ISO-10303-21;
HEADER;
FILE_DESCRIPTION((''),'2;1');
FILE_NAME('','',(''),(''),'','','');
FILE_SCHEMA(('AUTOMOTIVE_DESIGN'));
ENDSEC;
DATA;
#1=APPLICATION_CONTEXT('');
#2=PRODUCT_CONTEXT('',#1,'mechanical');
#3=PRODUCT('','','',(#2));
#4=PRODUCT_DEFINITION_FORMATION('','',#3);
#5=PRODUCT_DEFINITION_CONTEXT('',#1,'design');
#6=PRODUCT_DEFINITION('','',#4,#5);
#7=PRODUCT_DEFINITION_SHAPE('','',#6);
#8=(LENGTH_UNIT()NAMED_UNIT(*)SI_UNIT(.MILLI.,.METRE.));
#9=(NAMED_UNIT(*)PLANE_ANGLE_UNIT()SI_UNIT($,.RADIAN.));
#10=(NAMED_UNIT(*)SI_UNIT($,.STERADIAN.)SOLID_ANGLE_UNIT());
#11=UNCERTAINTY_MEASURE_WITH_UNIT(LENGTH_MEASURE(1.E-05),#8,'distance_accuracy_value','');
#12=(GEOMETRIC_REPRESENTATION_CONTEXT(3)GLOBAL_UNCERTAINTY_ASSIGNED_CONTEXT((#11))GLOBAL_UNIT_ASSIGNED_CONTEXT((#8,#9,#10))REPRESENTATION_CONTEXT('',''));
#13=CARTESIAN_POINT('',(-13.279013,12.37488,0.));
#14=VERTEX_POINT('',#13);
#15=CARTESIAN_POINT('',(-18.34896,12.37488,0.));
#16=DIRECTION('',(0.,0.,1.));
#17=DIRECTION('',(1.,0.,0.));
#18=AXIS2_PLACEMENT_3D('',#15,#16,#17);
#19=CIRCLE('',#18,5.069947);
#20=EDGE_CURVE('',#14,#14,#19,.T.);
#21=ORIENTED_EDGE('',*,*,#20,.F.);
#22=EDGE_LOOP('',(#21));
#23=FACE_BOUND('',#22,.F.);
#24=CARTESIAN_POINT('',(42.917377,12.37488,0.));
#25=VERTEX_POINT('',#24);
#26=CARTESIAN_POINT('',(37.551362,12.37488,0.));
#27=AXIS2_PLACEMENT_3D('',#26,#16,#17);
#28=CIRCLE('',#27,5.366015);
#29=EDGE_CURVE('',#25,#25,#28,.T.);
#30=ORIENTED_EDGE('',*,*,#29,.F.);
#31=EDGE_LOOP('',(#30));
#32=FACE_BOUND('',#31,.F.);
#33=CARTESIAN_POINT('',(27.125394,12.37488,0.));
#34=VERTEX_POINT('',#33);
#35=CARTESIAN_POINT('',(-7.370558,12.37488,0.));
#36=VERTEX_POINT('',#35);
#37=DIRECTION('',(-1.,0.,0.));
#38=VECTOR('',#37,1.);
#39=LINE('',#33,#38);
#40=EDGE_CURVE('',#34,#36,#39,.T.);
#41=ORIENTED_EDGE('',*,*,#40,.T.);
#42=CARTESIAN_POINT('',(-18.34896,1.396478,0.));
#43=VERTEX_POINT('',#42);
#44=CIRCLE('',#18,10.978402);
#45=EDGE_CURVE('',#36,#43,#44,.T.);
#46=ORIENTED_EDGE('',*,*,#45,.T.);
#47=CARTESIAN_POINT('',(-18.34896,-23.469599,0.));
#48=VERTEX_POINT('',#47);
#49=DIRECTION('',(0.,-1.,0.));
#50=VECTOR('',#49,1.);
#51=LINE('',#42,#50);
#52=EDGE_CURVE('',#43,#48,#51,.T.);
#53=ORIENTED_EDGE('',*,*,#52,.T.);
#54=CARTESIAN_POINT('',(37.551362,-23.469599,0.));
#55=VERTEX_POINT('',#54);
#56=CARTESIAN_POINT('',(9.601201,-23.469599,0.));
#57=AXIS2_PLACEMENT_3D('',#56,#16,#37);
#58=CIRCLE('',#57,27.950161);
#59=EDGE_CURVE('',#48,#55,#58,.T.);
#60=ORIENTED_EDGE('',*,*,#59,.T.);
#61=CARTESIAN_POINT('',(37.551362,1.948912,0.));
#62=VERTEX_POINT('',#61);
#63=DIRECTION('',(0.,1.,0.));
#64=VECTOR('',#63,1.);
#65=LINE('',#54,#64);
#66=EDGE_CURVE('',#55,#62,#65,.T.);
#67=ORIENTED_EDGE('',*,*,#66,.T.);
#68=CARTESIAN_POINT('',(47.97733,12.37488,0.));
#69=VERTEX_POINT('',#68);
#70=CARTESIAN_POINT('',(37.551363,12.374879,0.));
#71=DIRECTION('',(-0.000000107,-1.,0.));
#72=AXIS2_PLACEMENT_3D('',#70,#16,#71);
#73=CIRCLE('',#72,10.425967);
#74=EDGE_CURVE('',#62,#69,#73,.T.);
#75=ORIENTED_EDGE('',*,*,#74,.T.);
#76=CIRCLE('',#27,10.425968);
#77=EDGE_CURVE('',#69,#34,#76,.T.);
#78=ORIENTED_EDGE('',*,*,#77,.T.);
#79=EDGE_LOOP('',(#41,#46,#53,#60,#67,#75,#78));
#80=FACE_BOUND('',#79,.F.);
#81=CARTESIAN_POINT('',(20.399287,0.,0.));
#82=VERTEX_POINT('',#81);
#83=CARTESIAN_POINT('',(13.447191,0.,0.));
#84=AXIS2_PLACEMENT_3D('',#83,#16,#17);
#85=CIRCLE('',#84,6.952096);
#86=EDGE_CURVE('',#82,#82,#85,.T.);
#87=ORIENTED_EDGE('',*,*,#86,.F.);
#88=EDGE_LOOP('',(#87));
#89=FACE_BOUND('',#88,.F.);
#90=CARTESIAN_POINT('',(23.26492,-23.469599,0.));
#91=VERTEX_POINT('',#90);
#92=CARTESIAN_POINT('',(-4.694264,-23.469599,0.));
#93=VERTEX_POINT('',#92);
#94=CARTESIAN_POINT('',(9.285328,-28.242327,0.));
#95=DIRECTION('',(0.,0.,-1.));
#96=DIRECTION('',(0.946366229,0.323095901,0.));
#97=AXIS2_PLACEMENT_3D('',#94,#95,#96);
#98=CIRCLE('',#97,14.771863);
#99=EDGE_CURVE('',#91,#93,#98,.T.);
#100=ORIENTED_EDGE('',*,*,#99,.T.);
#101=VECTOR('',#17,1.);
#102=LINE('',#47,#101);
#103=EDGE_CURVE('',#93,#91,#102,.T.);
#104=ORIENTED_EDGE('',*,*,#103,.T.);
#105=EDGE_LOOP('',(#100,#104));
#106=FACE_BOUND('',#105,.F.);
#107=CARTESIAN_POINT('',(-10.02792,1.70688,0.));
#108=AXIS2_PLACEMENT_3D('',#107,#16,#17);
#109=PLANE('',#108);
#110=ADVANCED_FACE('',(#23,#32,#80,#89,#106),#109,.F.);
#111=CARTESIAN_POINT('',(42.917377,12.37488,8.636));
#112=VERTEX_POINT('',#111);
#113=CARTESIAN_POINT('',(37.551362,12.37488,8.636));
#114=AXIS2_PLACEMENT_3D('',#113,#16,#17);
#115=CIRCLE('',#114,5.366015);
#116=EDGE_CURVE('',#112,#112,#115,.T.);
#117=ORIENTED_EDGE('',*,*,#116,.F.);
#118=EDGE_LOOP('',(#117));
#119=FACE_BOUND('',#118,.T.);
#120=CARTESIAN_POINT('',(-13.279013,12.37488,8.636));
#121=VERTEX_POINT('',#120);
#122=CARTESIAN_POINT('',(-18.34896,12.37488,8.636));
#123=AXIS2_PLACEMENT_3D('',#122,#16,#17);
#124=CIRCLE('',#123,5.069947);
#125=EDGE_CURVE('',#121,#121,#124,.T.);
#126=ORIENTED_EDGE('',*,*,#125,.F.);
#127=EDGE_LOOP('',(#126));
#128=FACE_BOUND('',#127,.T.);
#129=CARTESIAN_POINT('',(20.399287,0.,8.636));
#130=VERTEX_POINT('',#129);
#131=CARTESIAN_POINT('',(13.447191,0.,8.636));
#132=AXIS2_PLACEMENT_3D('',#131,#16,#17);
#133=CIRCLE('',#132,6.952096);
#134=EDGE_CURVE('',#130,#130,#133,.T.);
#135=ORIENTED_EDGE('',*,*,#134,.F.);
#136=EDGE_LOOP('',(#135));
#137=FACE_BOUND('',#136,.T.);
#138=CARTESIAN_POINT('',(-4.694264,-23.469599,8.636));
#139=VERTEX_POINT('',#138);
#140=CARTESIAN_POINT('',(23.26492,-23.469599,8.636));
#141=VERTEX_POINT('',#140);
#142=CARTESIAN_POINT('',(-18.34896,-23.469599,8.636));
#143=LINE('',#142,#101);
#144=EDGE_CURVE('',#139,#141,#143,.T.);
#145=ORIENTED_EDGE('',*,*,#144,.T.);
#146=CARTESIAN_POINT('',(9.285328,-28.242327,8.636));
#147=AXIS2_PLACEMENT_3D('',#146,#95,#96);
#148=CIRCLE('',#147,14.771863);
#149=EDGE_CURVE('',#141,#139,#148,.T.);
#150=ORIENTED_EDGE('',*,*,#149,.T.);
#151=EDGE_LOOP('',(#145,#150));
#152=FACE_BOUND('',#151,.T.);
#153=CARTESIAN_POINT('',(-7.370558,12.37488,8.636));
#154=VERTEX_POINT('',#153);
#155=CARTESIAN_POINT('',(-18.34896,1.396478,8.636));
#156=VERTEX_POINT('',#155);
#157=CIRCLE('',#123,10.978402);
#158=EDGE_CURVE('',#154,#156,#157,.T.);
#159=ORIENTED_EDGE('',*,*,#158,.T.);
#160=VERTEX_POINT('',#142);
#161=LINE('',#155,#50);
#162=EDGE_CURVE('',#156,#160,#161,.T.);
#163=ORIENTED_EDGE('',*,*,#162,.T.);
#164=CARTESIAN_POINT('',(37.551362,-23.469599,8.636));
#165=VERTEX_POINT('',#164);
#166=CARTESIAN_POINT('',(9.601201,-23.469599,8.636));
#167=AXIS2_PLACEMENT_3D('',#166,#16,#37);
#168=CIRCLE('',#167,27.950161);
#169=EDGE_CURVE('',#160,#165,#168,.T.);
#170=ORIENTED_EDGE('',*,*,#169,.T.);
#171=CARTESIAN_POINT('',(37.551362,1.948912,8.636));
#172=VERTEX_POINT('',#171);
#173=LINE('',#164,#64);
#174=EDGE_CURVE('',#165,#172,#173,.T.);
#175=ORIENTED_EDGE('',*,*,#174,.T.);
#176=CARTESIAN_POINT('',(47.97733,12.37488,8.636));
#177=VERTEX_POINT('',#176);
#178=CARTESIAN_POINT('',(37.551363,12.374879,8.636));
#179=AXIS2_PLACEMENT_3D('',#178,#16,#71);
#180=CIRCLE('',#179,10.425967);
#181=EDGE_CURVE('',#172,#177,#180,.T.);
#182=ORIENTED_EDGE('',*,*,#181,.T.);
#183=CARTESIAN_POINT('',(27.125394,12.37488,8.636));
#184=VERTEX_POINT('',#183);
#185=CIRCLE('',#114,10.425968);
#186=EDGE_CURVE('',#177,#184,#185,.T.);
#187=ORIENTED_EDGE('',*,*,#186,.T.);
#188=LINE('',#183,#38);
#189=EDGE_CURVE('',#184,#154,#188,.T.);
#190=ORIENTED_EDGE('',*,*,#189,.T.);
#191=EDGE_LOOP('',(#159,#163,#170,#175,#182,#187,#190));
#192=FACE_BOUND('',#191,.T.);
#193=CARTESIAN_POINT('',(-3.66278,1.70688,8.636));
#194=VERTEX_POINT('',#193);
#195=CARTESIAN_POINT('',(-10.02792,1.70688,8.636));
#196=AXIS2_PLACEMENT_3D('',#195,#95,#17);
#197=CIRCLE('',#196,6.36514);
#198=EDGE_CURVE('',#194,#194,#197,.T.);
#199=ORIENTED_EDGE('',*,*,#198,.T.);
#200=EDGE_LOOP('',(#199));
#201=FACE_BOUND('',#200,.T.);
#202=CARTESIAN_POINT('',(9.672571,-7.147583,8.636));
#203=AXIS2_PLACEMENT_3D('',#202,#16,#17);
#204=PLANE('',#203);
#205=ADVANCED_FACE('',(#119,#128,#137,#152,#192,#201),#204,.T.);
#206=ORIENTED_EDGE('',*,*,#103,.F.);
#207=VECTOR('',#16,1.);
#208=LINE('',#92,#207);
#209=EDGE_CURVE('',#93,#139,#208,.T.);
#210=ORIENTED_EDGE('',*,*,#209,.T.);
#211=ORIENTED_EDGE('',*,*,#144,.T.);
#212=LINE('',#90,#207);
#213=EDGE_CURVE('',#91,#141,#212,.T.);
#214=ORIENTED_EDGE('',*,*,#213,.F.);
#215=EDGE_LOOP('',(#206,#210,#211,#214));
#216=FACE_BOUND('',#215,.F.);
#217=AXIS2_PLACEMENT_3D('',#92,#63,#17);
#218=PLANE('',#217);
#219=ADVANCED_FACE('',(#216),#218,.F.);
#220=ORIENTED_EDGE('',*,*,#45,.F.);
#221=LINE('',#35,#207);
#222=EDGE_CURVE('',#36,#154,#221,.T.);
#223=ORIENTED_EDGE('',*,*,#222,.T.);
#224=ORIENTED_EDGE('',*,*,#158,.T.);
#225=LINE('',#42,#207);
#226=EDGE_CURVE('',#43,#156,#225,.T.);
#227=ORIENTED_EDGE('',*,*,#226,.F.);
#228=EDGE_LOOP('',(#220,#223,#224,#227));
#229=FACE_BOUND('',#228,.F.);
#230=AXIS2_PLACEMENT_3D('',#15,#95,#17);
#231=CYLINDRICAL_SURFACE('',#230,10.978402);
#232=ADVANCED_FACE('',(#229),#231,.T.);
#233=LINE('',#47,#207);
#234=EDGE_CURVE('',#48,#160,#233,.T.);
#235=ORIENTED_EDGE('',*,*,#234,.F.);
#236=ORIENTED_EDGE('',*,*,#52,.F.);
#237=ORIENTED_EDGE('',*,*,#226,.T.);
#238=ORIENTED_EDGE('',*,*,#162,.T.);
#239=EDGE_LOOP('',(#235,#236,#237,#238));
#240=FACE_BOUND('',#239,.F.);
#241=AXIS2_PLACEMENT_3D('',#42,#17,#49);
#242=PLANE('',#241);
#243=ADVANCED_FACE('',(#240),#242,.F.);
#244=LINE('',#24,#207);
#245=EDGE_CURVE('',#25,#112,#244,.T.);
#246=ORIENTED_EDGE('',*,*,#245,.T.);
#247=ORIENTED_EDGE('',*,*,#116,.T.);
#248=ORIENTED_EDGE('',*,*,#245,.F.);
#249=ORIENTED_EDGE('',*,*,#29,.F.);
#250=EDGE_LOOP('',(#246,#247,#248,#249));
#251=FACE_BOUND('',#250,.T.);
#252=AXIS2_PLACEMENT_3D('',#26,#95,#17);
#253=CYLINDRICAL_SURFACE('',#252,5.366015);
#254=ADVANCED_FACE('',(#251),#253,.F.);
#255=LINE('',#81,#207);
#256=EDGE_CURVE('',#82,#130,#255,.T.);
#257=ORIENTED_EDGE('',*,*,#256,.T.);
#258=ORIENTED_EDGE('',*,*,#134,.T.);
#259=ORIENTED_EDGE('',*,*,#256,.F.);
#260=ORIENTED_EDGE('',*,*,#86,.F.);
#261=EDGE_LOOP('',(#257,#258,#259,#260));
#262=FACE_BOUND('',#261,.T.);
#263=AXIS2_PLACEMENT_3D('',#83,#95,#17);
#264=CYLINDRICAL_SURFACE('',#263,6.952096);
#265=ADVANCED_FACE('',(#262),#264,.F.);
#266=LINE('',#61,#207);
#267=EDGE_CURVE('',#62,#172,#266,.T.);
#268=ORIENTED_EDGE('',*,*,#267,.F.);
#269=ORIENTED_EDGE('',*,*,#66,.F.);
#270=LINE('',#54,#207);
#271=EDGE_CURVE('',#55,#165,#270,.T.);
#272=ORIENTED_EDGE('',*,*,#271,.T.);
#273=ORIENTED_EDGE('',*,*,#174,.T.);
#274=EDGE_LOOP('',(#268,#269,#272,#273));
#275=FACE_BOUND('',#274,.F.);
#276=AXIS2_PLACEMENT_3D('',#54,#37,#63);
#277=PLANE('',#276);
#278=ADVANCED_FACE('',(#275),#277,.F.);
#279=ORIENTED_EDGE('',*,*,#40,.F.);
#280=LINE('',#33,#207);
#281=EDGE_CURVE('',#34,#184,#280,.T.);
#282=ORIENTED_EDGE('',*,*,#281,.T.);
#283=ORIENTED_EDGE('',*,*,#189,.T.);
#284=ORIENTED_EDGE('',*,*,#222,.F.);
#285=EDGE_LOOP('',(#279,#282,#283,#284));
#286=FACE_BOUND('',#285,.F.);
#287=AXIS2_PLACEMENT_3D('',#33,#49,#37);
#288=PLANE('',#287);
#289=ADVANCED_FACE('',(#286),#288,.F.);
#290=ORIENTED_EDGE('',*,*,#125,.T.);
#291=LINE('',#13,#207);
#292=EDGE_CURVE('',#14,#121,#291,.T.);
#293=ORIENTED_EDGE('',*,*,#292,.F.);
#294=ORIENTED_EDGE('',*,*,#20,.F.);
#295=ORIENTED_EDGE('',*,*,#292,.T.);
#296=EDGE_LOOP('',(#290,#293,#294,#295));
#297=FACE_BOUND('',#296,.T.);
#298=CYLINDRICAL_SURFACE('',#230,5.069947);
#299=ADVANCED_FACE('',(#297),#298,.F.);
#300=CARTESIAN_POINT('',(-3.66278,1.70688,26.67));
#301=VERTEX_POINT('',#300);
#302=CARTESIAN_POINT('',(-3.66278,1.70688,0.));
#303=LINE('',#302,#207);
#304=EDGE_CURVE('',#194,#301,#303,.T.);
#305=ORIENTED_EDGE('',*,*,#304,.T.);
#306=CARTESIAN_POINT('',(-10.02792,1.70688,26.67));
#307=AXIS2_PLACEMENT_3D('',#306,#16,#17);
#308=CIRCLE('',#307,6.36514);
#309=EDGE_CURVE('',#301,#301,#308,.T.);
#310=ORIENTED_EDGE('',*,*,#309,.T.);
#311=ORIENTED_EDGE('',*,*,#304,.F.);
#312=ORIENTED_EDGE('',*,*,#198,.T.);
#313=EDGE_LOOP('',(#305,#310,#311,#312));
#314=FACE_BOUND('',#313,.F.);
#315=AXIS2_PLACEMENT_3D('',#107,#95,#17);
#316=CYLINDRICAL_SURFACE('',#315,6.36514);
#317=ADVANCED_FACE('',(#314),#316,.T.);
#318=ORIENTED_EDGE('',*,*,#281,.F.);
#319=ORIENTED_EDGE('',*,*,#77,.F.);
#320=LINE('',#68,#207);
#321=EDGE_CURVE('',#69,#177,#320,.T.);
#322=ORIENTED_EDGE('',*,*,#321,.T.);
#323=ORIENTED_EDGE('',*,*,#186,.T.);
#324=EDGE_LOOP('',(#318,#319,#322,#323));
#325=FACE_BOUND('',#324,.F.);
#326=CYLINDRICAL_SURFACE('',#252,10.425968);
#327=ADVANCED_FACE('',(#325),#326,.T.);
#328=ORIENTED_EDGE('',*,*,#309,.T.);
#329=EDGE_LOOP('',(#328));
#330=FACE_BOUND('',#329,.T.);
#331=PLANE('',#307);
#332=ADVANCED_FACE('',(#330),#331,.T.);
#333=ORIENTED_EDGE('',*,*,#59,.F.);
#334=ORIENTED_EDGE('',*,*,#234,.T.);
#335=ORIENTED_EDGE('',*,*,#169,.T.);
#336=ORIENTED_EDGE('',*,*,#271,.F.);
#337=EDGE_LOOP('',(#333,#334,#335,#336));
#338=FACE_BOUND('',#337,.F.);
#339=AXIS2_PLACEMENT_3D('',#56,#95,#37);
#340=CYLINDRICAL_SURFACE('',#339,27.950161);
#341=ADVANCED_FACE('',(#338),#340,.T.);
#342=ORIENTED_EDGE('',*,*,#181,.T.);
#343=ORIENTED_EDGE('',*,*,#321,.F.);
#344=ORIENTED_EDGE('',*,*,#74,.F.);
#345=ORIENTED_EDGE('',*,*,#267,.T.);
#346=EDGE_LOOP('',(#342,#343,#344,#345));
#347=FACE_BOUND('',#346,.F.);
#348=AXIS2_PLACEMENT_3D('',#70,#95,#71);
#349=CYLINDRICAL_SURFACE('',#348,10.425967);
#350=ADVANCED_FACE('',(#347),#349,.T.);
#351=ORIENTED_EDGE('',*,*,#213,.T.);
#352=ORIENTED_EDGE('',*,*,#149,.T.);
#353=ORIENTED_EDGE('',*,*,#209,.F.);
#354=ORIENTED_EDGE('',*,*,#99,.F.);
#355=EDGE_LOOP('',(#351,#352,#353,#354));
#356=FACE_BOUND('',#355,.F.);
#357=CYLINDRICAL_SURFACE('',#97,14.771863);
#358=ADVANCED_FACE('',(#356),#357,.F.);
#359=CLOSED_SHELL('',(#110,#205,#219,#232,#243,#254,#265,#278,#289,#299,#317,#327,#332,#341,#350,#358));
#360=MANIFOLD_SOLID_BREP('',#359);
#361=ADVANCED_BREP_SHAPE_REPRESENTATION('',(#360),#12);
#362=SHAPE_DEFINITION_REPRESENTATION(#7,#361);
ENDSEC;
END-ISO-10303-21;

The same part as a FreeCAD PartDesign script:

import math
import FreeCAD as App
import Part
import Sketcher

V = App.Vector
Q = App.Units.Quantity

doc = App.newDocument("Part")
body = doc.addObject("PartDesign::Body", "Body")

# Sketch on XY plane
sketch1 = body.newObject("Sketcher::SketchObject", "Sketch")
sketch1.AttachmentSupport = (doc.getObject("XY_Plane"), [""])
sketch1.MapMode = "FlatFace"
sketch1.addGeometry([
    Part.LineSegment(V(-18.34896, 1.396478, 0), V(-18.34896, -23.469599, 0)),  # 0
    Part.ArcOfCircle(Part.Circle(V(9.601201, -23.469599, 0), V(0, 0, 1), 27.950161), math.radians(180), math.radians(360)),  # 1
    Part.LineSegment(V(37.551362, -23.469599, 0), V(37.551362, 1.948912, 0)),  # 2
    Part.ArcOfCircle(Part.Circle(V(37.551363, 12.374879, 0), V(0, 0, 1), 10.425967), math.radians(-90.000006), math.radians(0.000006)),  # 3
    Part.ArcOfCircle(Part.Circle(V(37.551362, 12.37488, 0), V(0, 0, 1), 10.425968), math.radians(0), math.radians(180)),  # 4
    Part.LineSegment(V(27.125394, 12.37488, 0), V(-7.370558, 12.37488, 0)),  # 5
    Part.ArcOfCircle(Part.Circle(V(-18.34896, 12.37488, 0), V(0, 0, 1), 10.978402), math.radians(0), math.radians(270)),  # 6
    Part.LineSegment(V(-4.694264, -23.469599, 0), V(23.26492, -23.469599, 0)),  # 7
    Part.ArcOfCircle(Part.Circle(V(9.285328, -28.242327, 0), V(0, 0, 1), 14.771863), math.radians(161.149744), math.radians(378.850256)),  # 8
    Part.Circle(V(-18.34896, 12.37488, 0), V(0, 0, 1), 5.069947),  # 9
    Part.Circle(V(13.447191, 0, 0), V(0, 0, 1), 6.952096),  # 10
    Part.Circle(V(37.551362, 12.37488, 0), V(0, 0, 1), 5.366015),  # 11
], False)
sketch1.addConstraint([
    Sketcher.Constraint("Tangent", 0, 2, 1, 1),
    Sketcher.Constraint("Tangent", 1, 2, 2, 1),
    Sketcher.Constraint("Coincident", 2, 2, 3, 1),
    Sketcher.Constraint("Tangent", 3, 2, 4, 1),
    Sketcher.Constraint("Coincident", 4, 2, 5, 1),
    Sketcher.Constraint("Coincident", 5, 2, 6, 1),
    Sketcher.Constraint("Coincident", 6, 2, 0, 1),
    Sketcher.Constraint("Coincident", 7, 1, 8, 1),
    Sketcher.Constraint("Coincident", 8, 2, 7, 2),
    Sketcher.Constraint("Vertical", 0),
    Sketcher.Constraint("Vertical", 2),
    Sketcher.Constraint("Horizontal", 5),
    Sketcher.Constraint("Horizontal", 7),
    Sketcher.Constraint("Coincident", 9, 3, 6, 3),
    Sketcher.Constraint("Coincident", 11, 3, 3, 3),
    Sketcher.Constraint("Equal", 3, 4),
    Sketcher.Constraint("PointOnObject", 10, 3, -1),
    Sketcher.Constraint("Horizontal", 4, 3, 6, 3),
    Sketcher.Constraint("Horizontal", 11, 3, 3, 2),
    Sketcher.Constraint("Horizontal", 3, 2, 4, 2),
    Sketcher.Constraint("Horizontal", 1, 2, 7, 1),
    Sketcher.Constraint("Vertical", 9, 3, 0, 2),
    Sketcher.Constraint("Vertical", 11, 3, 1, 2),
    Sketcher.Constraint("Radius", 1, Q("1.1004 in")),
    Sketcher.Constraint("Diameter", 11, 10.73203),
    Sketcher.Constraint("DistanceX", -1, 1, 1, 3, Q("0.378 in")),
    Sketcher.Constraint("DistanceY", 1, 3, -1, 1, Q("0.924 in")),
    Sketcher.Constraint("Diameter", 9, 10.139894),
    Sketcher.Constraint("Diameter", 10, 13.904192),
    Sketcher.Constraint("DistanceY", -1, 1, 3, 3, Q("0.4872 in")),
    Sketcher.Constraint("Radius", 3, 10.425967),
    Sketcher.Constraint("Radius", 6, 10.978402),
    Sketcher.Constraint("Radius", 8, 14.771863),
    Sketcher.Constraint("DistanceX", 7, 1, 7, 2, 27.959184),
    Sketcher.Constraint("DistanceX", -1, 1, 10, 3, 13.447191),
    Sketcher.Constraint("DistanceX", -1, 1, 8, 2, 23.26492),
])
pad1 = body.newObject("PartDesign::Pad", "Pad")
pad1.Profile = sketch1
pad1.Length = Q("0.34 in")

# Sketch on XY plane
sketch2 = body.newObject("Sketcher::SketchObject", "Sketch001")
sketch2.AttachmentSupport = (doc.getObject("XY_Plane"), [""])
sketch2.MapMode = "FlatFace"
sketch2.addGeometry(Part.Circle(V(-10.02792, 1.70688, 0), V(0, 0, 1), 6.36514), False)
sketch2.addConstraint([
    Sketcher.Constraint("Diameter", 0, 12.73028),
    Sketcher.Constraint("DistanceX", 0, 3, -1, 1, Q("0.3948 in")),
    Sketcher.Constraint("DistanceY", -1, 1, 0, 3, Q("0.0672 in")),
])
pad2 = body.newObject("PartDesign::Pad", "Pad001")
pad2.Profile = sketch2
pad2.Length = Q("1.05 in")

doc.recompute()
